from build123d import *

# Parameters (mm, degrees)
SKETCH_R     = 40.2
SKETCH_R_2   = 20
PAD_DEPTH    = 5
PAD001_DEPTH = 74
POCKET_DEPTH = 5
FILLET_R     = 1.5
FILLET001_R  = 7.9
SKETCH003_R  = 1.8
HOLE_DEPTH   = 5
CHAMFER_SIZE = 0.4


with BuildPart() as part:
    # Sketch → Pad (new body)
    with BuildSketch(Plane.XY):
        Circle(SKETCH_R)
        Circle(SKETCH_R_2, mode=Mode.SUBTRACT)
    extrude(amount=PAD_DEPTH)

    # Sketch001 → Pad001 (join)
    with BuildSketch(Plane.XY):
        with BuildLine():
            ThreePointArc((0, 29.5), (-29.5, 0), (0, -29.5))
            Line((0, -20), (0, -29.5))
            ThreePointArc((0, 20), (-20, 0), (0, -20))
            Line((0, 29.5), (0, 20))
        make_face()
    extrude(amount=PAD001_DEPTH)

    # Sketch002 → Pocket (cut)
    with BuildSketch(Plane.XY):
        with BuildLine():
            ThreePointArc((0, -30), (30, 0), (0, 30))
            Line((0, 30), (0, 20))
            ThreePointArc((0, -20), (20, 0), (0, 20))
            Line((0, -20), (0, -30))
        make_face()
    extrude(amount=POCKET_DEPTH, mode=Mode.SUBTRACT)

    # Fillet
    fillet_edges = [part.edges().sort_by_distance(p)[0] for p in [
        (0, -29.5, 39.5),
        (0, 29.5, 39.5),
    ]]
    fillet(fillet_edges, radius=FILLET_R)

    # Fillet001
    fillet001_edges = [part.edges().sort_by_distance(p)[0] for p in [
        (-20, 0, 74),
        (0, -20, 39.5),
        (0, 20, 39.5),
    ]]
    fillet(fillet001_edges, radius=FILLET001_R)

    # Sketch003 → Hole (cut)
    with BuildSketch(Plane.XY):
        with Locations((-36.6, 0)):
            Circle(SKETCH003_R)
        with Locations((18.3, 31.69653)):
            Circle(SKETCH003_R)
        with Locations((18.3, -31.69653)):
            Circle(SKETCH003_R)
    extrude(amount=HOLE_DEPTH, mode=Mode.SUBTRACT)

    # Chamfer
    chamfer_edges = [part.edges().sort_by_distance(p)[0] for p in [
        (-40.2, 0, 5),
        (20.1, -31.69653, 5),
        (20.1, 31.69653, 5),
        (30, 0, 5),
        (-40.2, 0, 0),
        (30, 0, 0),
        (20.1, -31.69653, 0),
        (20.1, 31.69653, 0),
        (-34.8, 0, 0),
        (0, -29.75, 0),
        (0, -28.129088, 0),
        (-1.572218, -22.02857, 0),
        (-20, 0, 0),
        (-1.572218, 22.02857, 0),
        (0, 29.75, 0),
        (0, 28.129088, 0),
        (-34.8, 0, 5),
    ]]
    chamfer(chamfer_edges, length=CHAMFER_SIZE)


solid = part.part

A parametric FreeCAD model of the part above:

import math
import FreeCAD as App
import Part
import Sketcher

V = App.Vector
Q = App.Units.Quantity


def edges_at(feature, points):
    """Names of the edges that pass closest to the given points."""
    edges = feature.Shape.Edges
    near = lambda p: min(range(len(edges)), key=lambda i: edges[i].distToShape(Part.Vertex(*p))[0])
    return sorted({f"Edge{near(p) + 1}" for p in points})

doc = App.newDocument("Part")
params = doc.addObject("Spreadsheet::Sheet", "Params")
for row, (alias, value) in enumerate([
    ("sketch1_diameter", "40 mm"),
    ("sketch1_diameter2", "80.4 mm"),
    ("pad1_length", "5 mm"),
    ("sketch2_radius", "20 mm"),
    ("sketch2_radius2", "29.5 mm"),
    ("pad2_length", "74 mm"),
    ("sketch3_radius", "30 mm"),
    ("sketch3_radius2", "20 mm"),
    ("pocket1_length", "5 mm"),
    ("fillet_radius", "1.5 mm"),
    ("fillet2_radius", "7.9 mm"),
    ("sketch4_diameter", "3.6 mm"),
    ("pocket2_length", "5 mm"),
    ("chamfer_size", "0.4 mm"),
], start=1):
    params.set(f"A{row}", alias)
    params.set(f"B{row}", "=" + value)
    params.setAlias(f"B{row}", alias)

body = doc.addObject("PartDesign::Body", "Body")

sketch1 = body.newObject("Sketcher::SketchObject", "Sketch")
sketch1.AttachmentSupport = (doc.getObject("XY_Plane"), [""])
sketch1.MapMode = "FlatFace"
sketch1.addGeometry([
    Part.Circle(V(0, 0, 0), V(0, 0, 1), 40.2),
    Part.Circle(V(0, 0, 0), V(0, 0, 1), 20),
], False)
sketch1.addConstraint([
    Sketcher.Constraint("Coincident", 0, 3, -1, 1),
    Sketcher.Constraint("Coincident", 1, 3, -1, 1),
    Sketcher.Constraint("Diameter", 1, Q("40 mm")),
    Sketcher.Constraint("Diameter", 0, Q("80.4 mm")),
])
sketch1.setExpression("Constraints[2]", "Params.sketch1_diameter")
sketch1.setExpression("Constraints[3]", "Params.sketch1_diameter2")
pad1 = body.newObject("PartDesign::Pad", "Pad")
pad1.Profile = sketch1
pad1.setExpression("Length", "Params.pad1_length")

sketch2 = body.newObject("Sketcher::SketchObject", "Sketch001")
sketch2.AttachmentSupport = (doc.getObject("XY_Plane"), [""])
sketch2.MapMode = "FlatFace"
sketch2.addGeometry([
    Part.ArcOfCircle(Part.Circle(V(0, 0, 0), V(0, 0, 1), 29.5), math.radians(90), math.radians(270)),
    Part.LineSegment(V(0, -29.5, 0), V(0, -20, 0)),
    Part.ArcOfCircle(Part.Circle(V(0, 0, 0), V(0, 0, 1), 20), math.radians(90), math.radians(270)),
    Part.LineSegment(V(0, 20, 0), V(0, 29.5, 0)),
], False)
sketch2.addConstraint([
    Sketcher.Constraint("Coincident", 0, 2, 1, 1),
    Sketcher.Constraint("Coincident", 1, 2, 2, 2),
    Sketcher.Constraint("Coincident", 2, 1, 3, 1),
    Sketcher.Constraint("Coincident", 3, 2, 0, 1),
    Sketcher.Constraint("Vertical", 1),
    Sketcher.Constraint("Vertical", 3),
    Sketcher.Constraint("Coincident", 0, 3, -1, 1),
    Sketcher.Constraint("Coincident", 2, 3, -1, 1),
    Sketcher.Constraint("PointOnObject", 0, 2, -2),
    Sketcher.Constraint("PointOnObject", 2, 1, -2),
    Sketcher.Constraint("Radius", 2, Q("20 mm")),
    Sketcher.Constraint("Radius", 0, Q("29.5 mm")),
])
sketch2.setExpression("Constraints[10]", "Params.sketch2_radius")
sketch2.setExpression("Constraints[11]", "Params.sketch2_radius2")
pad2 = body.newObject("PartDesign::Pad", "Pad001")
pad2.Profile = sketch2
pad2.setExpression("Length", "Params.pad2_length")

sketch3 = body.newObject("Sketcher::SketchObject", "Sketch002")
sketch3.AttachmentSupport = (doc.getObject("XY_Plane"), [""])
sketch3.MapMode = "FlatFace"
sketch3.addGeometry([
    Part.ArcOfCircle(Part.Circle(V(0, 0, 0), V(0, 0, 1), 30), math.radians(-90), math.radians(90)),
    Part.LineSegment(V(0, 30, 0), V(0, 20, 0)),
    Part.ArcOfCircle(Part.Circle(V(0, 0, 0), V(0, 0, 1), 20), math.radians(-90), math.radians(90)),
    Part.LineSegment(V(0, -20, 0), V(0, -30, 0)),
], False)
sketch3.addConstraint([
    Sketcher.Constraint("Coincident", 0, 2, 1, 1),
    Sketcher.Constraint("Coincident", 1, 2, 2, 2),
    Sketcher.Constraint("Coincident", 2, 1, 3, 1),
    Sketcher.Constraint("Coincident", 3, 2, 0, 1),
    Sketcher.Constraint("Vertical", 1),
    Sketcher.Constraint("Vertical", 3),
    Sketcher.Constraint("Coincident", 0, 3, -1, 1),
    Sketcher.Constraint("Coincident", 2, 3, -1, 1),
    Sketcher.Constraint("PointOnObject", 0, 2, -2),
    Sketcher.Constraint("PointOnObject", 2, 1, -2),
    Sketcher.Constraint("Radius", 0, Q("30 mm")),
    Sketcher.Constraint("Radius", 2, Q("20 mm")),
])
sketch3.setExpression("Constraints[10]", "Params.sketch3_radius")
sketch3.setExpression("Constraints[11]", "Params.sketch3_radius2")
pocket1 = body.newObject("PartDesign::Pocket", "Pocket")
pocket1.Profile = sketch3
pocket1.setExpression("Length", "Params.pocket1_length")
pocket1.Reversed = True
doc.recompute()

fillet = body.newObject("PartDesign::Fillet", "Fillet")
fillet.Base = (pocket1, edges_at(pocket1, [(0, -29.5, 39.5), (0, 29.5, 39.5)]))
fillet.setExpression("Radius", "Params.fillet_radius")
doc.recompute()

fillet2 = body.newObject("PartDesign::Fillet", "Fillet001")
fillet2.Base = (fillet, edges_at(fillet, [(-20, 0, 74), (0, -20, 37), (0, 20, 37)]))
fillet2.setExpression("Radius", "Params.fillet2_radius")

sketch4 = body.newObject("Sketcher::SketchObject", "Sketch003")
sketch4.AttachmentSupport = (doc.getObject("XY_Plane"), [""])
sketch4.MapMode = "FlatFace"
sketch4.addGeometry([
    Part.Circle(V(-36.6, 0, 0), V(0, 0, 1), 1.8),
    Part.Circle(V(18.3, 31.69653, 0), V(0, 0, 1), 1.8),
    Part.Circle(V(18.3, -31.69653, 0), V(0, 0, 1), 1.8),
], False)
sketch4.addConstraint([
    Sketcher.Constraint("Equal", 0, 1),
    Sketcher.Constraint("Equal", 1, 2),
    Sketcher.Constraint("Symmetric", 1, 3, 2, 3, -1),
    Sketcher.Constraint("PointOnObject", 0, 3, -1),
    Sketcher.Constraint("Diameter", 0, Q("3.6 mm")),
    Sketcher.Constraint("DistanceX", 0, 3, -1, 1, Q("36.6 mm")),
    Sketcher.Constraint("DistanceX", -1, 1, 1, 3, Q("18.3 mm")),
    Sketcher.Constraint("DistanceY", -1, 1, 1, 3, Q("31.69653 mm")),
])
sketch4.setExpression("Constraints[4]", "Params.sketch4_diameter")
pocket2 = body.newObject("PartDesign::Pocket", "Pocket001")
pocket2.Profile = sketch4
pocket2.setExpression("Length", "Params.pocket2_length")
pocket2.Reversed = True
doc.recompute()

chamfer = body.newObject("PartDesign::Chamfer", "Chamfer")
chamfer.Base = (pocket2, edges_at(pocket2, [
    (-40.2, 0, 5),
    (16.5, -31.697, 5),
    (16.5, 31.697, 5),
    (30, 0, 5),
    (-40.2, 0, 0),
    (30, 0, 0),
    (16.5, -31.697, 0),
    (16.5, 31.697, 0),
    (-38.4, 0, 0),
    (0, -28.379, 0),
    (0, -28.379, 0),
    (-1.572, -22.029, 0),
    (-20, 0, 0),
    (-1.572, 22.029, 0),
    (0, 28.379, 0),
    (0, 28.379, 0),
    (-38.4, 0, 5),
]))
chamfer.setExpression("Size", "Params.chamfer_size")

doc.recompute()
